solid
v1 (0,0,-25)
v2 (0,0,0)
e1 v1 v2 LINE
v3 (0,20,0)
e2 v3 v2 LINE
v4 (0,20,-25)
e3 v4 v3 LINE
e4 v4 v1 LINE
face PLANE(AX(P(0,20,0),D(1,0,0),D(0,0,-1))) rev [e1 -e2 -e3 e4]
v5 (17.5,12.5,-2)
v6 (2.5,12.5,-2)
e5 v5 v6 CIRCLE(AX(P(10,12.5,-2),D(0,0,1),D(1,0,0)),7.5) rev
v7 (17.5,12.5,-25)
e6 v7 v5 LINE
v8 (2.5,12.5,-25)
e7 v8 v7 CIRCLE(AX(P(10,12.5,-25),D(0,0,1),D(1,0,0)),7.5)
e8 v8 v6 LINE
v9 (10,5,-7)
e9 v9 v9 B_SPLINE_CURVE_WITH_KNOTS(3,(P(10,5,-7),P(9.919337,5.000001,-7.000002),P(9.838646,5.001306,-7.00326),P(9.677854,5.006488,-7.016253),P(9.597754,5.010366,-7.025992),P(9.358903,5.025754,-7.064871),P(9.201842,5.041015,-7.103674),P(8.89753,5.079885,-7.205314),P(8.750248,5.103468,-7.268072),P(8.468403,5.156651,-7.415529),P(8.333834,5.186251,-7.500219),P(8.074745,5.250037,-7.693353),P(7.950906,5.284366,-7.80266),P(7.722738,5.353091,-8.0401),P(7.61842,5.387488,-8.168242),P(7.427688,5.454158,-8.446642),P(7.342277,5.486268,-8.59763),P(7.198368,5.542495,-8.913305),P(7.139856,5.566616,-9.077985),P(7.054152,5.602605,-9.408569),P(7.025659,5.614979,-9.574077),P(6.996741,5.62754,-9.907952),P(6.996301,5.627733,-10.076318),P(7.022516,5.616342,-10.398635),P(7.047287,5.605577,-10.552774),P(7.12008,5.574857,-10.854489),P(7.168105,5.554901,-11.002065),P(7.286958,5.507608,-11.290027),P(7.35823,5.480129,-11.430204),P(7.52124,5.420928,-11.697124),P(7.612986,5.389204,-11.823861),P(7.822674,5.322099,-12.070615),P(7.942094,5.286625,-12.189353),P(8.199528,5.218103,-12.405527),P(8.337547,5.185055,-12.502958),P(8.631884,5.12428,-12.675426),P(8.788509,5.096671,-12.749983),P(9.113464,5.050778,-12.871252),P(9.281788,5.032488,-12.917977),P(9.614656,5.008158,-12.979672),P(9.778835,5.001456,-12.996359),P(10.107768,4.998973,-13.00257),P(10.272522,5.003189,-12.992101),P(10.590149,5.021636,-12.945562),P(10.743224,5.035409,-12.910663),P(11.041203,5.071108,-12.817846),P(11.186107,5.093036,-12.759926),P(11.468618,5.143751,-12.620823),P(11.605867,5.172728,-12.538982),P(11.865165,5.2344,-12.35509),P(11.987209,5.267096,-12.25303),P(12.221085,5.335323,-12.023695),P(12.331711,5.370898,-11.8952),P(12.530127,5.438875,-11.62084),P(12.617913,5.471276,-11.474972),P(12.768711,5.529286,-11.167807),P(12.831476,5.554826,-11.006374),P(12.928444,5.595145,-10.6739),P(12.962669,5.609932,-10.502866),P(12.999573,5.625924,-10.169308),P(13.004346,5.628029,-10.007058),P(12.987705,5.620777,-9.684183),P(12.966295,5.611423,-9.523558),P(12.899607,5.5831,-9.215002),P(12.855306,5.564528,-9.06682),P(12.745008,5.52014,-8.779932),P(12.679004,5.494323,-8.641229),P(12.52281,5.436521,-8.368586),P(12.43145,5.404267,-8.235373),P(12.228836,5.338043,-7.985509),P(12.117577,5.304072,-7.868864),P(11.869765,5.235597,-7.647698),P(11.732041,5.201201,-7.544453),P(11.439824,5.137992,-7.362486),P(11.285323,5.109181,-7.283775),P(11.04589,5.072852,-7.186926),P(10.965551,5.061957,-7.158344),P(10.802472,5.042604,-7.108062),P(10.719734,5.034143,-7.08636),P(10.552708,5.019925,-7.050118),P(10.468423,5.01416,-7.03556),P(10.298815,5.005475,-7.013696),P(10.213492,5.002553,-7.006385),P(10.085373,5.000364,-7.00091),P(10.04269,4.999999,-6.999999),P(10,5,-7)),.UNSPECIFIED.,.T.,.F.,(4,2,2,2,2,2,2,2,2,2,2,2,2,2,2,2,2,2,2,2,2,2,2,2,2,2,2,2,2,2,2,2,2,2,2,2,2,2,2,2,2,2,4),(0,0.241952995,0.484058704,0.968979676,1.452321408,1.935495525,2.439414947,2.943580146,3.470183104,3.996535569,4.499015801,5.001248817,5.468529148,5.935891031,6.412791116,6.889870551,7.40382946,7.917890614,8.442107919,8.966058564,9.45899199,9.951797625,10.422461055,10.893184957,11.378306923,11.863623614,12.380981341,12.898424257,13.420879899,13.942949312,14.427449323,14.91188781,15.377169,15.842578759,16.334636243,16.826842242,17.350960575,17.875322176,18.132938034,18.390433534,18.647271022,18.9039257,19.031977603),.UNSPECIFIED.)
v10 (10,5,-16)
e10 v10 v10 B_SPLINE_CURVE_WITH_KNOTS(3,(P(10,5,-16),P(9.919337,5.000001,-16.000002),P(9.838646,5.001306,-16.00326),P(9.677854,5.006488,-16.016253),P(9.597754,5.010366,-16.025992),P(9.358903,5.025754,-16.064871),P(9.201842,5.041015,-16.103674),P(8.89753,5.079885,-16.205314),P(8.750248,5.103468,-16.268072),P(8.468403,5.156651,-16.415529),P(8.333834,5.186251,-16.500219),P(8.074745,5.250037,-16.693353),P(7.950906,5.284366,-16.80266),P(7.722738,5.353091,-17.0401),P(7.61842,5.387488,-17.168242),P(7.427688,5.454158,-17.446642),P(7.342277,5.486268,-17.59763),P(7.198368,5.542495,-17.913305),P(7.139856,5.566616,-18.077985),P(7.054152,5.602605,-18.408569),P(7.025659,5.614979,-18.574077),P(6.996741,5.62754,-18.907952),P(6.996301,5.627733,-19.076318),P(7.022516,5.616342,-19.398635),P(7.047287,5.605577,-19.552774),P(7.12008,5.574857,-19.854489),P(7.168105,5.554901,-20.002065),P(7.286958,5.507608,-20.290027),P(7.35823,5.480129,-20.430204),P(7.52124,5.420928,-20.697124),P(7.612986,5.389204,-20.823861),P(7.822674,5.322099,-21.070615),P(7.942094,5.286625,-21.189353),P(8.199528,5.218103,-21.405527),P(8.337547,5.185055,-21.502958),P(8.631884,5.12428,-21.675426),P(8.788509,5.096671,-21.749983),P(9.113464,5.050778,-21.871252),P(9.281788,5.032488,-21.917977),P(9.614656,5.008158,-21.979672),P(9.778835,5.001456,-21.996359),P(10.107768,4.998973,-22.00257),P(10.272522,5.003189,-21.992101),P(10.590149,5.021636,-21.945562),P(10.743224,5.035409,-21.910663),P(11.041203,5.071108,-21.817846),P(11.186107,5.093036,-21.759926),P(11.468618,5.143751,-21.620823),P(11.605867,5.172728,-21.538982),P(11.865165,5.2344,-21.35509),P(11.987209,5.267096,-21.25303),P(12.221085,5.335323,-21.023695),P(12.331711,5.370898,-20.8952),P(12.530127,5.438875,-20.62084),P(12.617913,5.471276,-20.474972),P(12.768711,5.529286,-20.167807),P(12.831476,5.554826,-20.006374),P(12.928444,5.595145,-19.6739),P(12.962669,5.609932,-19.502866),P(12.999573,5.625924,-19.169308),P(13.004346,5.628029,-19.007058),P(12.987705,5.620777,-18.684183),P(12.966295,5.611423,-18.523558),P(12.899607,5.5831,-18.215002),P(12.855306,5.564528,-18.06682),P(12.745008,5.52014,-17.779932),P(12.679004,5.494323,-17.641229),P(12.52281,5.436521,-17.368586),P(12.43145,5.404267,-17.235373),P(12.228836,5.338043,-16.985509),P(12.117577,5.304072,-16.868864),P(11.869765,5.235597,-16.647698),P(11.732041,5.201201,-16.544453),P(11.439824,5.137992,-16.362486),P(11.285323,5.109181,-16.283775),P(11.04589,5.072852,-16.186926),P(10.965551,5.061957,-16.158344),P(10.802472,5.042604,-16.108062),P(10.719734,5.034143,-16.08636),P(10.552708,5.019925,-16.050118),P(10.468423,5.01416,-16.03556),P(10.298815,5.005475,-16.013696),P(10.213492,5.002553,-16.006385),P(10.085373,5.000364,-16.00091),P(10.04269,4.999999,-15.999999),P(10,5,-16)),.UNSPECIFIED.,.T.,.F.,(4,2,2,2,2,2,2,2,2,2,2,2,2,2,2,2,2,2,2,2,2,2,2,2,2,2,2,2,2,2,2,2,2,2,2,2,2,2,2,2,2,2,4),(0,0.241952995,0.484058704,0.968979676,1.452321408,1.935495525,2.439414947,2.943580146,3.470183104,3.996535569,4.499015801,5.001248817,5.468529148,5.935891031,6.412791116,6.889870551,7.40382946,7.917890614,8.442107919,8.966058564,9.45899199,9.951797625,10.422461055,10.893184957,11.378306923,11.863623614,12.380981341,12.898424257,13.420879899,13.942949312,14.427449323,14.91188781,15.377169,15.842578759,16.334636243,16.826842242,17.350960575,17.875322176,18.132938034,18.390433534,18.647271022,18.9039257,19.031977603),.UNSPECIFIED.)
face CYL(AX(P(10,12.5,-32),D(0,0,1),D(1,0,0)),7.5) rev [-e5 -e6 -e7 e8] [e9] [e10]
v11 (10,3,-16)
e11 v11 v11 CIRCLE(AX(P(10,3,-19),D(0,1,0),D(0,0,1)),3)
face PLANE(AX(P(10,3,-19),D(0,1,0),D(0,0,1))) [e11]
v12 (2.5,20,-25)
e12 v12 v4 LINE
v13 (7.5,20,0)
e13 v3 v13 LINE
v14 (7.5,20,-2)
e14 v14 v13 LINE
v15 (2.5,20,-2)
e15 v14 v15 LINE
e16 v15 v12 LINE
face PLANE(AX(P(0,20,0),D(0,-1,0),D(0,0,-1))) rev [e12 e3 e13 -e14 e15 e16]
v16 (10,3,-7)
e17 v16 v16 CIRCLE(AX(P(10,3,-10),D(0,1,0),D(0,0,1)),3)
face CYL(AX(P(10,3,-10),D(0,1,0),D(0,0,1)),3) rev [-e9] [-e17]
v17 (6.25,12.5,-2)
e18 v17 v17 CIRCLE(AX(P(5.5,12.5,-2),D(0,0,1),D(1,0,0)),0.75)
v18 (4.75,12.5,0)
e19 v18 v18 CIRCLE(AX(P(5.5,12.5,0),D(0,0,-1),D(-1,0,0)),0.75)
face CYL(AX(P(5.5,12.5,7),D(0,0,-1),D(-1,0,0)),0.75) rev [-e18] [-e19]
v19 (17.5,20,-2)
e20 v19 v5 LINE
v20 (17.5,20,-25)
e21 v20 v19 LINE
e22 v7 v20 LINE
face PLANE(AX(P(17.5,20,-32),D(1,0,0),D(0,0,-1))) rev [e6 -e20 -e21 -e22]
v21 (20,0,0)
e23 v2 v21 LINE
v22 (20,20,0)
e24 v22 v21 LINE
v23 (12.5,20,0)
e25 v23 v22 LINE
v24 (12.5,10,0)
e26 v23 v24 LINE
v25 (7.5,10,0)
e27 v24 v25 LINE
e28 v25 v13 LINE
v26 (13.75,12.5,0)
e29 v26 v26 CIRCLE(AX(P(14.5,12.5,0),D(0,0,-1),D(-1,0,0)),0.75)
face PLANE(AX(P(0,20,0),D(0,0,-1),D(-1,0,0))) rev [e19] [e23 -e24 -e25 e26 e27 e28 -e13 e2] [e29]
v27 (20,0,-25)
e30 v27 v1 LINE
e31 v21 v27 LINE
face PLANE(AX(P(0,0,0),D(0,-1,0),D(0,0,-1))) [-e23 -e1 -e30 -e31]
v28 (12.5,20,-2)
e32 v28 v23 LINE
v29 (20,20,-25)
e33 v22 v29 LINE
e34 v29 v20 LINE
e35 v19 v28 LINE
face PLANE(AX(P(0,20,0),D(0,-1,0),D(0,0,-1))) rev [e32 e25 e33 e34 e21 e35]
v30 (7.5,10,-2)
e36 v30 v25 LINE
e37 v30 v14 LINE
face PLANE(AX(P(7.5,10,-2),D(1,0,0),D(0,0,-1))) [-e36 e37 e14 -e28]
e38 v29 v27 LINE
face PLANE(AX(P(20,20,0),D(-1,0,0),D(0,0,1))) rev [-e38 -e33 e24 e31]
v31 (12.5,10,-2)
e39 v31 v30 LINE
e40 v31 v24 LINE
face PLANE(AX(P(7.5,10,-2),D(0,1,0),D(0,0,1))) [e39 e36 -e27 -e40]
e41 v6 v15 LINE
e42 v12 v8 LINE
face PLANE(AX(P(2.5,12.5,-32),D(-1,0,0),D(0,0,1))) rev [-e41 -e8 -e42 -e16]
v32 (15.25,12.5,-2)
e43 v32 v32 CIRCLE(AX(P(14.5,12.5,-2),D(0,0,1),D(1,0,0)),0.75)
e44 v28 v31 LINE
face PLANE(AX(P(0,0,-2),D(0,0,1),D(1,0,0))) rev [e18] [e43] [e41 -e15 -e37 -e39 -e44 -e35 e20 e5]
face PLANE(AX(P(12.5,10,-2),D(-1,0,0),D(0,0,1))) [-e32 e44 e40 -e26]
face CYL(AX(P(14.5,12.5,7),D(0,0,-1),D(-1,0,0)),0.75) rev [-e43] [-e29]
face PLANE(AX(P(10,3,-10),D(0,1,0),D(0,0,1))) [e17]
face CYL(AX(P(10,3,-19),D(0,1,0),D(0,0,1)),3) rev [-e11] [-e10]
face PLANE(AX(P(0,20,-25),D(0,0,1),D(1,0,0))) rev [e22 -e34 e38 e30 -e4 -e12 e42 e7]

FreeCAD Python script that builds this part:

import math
import FreeCAD as App
import Part
import Sketcher
from FreeCAD import Vector
Q = App.Units.Quantity


def add_polygon(sketch, points):
    """Adds a closed chain of lines whose ends are joined by coincident constraints."""
    first, n = sketch.GeometryCount, len(points)
    for a, b in zip(points, points[1:] + points[:1]):
        sketch.addGeometry(Part.LineSegment(App.Vector(*a, 0), App.Vector(*b, 0)), False)
    for i in range(n):
        sketch.addConstraint(Sketcher.Constraint("Coincident", first + i, 2, first + (i + 1) % n, 1))

doc = App.newDocument("Part")
body = doc.addObject("PartDesign::Body", "Body")

# Sketch on XZ plane
sketch1 = body.newObject("Sketcher::SketchObject", "Sketch")
sketch1.AttachmentSupport = (doc.getObject("XZ_Plane"), [""])
sketch1.MapMode = "FlatFace"
add_polygon(sketch1, [(0, -25), (0, 0), (20, 0), (20, -25)])  # lines 0-3
sketch1.addConstraint(Sketcher.Constraint("Vertical", 0))
sketch1.addConstraint(Sketcher.Constraint("Horizontal", 1))
sketch1.addConstraint(Sketcher.Constraint("Vertical", 2))
sketch1.addConstraint(Sketcher.Constraint("Horizontal", 3))
sketch1.addConstraint(Sketcher.Constraint("Coincident", 0, 2, -1, 1))
sketch1.addConstraint(Sketcher.Constraint("DistanceX", 1, 1, 1, 2, Q("20 mm")))
sketch1.addConstraint(Sketcher.Constraint("DistanceY", 0, 1, 0, 2, Q("25 mm")))
pad1 = body.newObject("PartDesign::Pad", "Pad")
pad1.Profile = sketch1
pad1.Length = 20
pad1.Reversed = True

# Sketch on XY plane
sketch2 = body.newObject("Sketcher::SketchObject", "Sketch001")
sketch2.AttachmentSupport = (doc.getObject("XY_Plane"), [""])
sketch2.MapMode = "FlatFace"
sketch2.addGeometry(Part.LineSegment(Vector(2, 20, 0), Vector(2, 12, 0)), False)
sketch2.addGeometry(Part.ArcOfCircle(Part.Circle(Vector(10, 12, 0), Vector(0, 0, 1), 8), math.radians(180), math.radians(360)), False)
sketch2.addGeometry(Part.LineSegment(Vector(18, 12, 0), Vector(18, 20, 0)), False)
sketch2.addGeometry(Part.LineSegment(Vector(18, 20, 0), Vector(2, 20, 0)), False)
sketch2.addConstraint(Sketcher.Constraint("Tangent", 0, 2, 1, 1))
sketch2.addConstraint(Sketcher.Constraint("Tangent", 1, 2, 2, 1))
sketch2.addConstraint(Sketcher.Constraint("Coincident", 2, 2, 3, 1))
sketch2.addConstraint(Sketcher.Constraint("Coincident", 3, 2, 0, 1))
sketch2.addConstraint(Sketcher.Constraint("Vertical", 0))
sketch2.addConstraint(Sketcher.Constraint("Vertical", 2))
sketch2.addConstraint(Sketcher.Constraint("Horizontal", 3))
sketch2.addConstraint(Sketcher.Constraint("Radius", 1, Q("7.5 mm")))
sketch2.addConstraint(Sketcher.Constraint("DistanceY", 0, 2, 0, 1, Q("7.5 mm")))
sketch2.addConstraint(Sketcher.Constraint("DistanceX", -1, 1, 1, 3, Q("10 mm")))
sketch2.addConstraint(Sketcher.Constraint("DistanceY", -1, 1, 2, 2, Q("20 mm")))
pocket1 = body.newObject("PartDesign::Pocket", "Pocket")
pocket1.Profile = sketch2
pocket1.Length = 32

# Sketch on XZ plane
sketch3 = body.newObject("Sketcher::SketchObject", "Sketch002")
sketch3.AttachmentSupport = (doc.getObject("XZ_Plane"), [""])
sketch3.MapMode = "FlatFace"
sketch3.AttachmentOffset = App.Placement(Vector(0, 0, -20), App.Rotation())
sketch3.addGeometry(Part.Circle(Vector(10, -10, 0), Vector(0, 0, 1), 3), False)
sketch3.addGeometry(Part.Circle(Vector(10, -19, 0), Vector(0, 0, 1), 3), False)
sketch3.addConstraint(Sketcher.Constraint("Equal", 0, 1))
sketch3.addConstraint(Sketcher.Constraint("Vertical", 0, 3, 1, 3))
sketch3.addConstraint(Sketcher.Constraint("Diameter", 0, Q("6 mm")))
sketch3.addConstraint(Sketcher.Constraint("DistanceX", -1, 1, 0, 3, Q("10 mm")))
sketch3.addConstraint(Sketcher.Constraint("DistanceY", 0, 3, -1, 1, Q("10 mm")))
sketch3.addConstraint(Sketcher.Constraint("DistanceY", 1, 3, -1, 1, Q("19 mm")))
pocket2 = body.newObject("PartDesign::Pocket", "Pocket001")
pocket2.Profile = sketch3
pocket2.Length = 17
pocket2.Reversed = True

# Sketch on XY plane
sketch4 = body.newObject("Sketcher::SketchObject", "Sketch003")
sketch4.AttachmentSupport = (doc.getObject("XY_Plane"), [""])
sketch4.MapMode = "FlatFace"
add_polygon(sketch4, [(20, 20), (12, 20), (12, 10), (8, 10), (8, 20), (0, 20), (0, 0), (20, 0)])  # lines 0-7
sketch4.addConstraint(Sketcher.Constraint("Horizontal", 0))
sketch4.addConstraint(Sketcher.Constraint("Vertical", 1))
sketch4.addConstraint(Sketcher.Constraint("Horizontal", 2))
sketch4.addConstraint(Sketcher.Constraint("Vertical", 3))
sketch4.addConstraint(Sketcher.Constraint("Horizontal", 4))
sketch4.addConstraint(Sketcher.Constraint("Vertical", 5))
sketch4.addConstraint(Sketcher.Constraint("Horizontal", 6))
sketch4.addConstraint(Sketcher.Constraint("Vertical", 7))
sketch4.addConstraint(Sketcher.Constraint("Coincident", 5, 2, -1, 1))
sketch4.addConstraint(Sketcher.Constraint("Horizontal", 0, 2, 3, 2))
sketch4.addConstraint(Sketcher.Constraint("Equal", 0, 4))
sketch4.addConstraint(Sketcher.Constraint("Equal", 6, 5))
sketch4.addConstraint(Sketcher.Constraint("DistanceX", 2, 2, 2, 1, Q("5 mm")))
sketch4.addConstraint(Sketcher.Constraint("DistanceX", 6, 1, 6, 2, Q("20 mm")))
sketch4.addConstraint(Sketcher.Constraint("DistanceY", 1, 2, 1, 1, Q("10 mm")))
pad2 = body.newObject("PartDesign::Pad", "Pad001")
pad2.Profile = sketch4
pad2.Length = 2
pad2.Reversed = True

# Sketch on XY plane
sketch5 = body.newObject("Sketcher::SketchObject", "Sketch004")
sketch5.AttachmentSupport = (doc.getObject("XY_Plane"), [""])
sketch5.MapMode = "FlatFace"
sketch5.AttachmentOffset = App.Placement(Vector(0, 0, -25), App.Rotation())
sketch5.addGeometry(Part.Circle(Vector(14.5, 12.5, 0), Vector(0, 0, 1), 0.8), False)
sketch5.addGeometry(Part.Circle(Vector(5.5, 12.5, 0), Vector(0, 0, 1), 0.8), False)
sketch5.addConstraint(Sketcher.Constraint("Equal", 0, 1))
sketch5.addConstraint(Sketcher.Constraint("Horizontal", 0, 3, 1, 3))
sketch5.addConstraint(Sketcher.Constraint("Diameter", 0, Q("1.5 mm")))
sketch5.addConstraint(Sketcher.Constraint("DistanceX", 1, 3, 0, 3, Q("9 mm")))
sketch5.addConstraint(Sketcher.Constraint("DistanceX", -1, 1, 0, 3, Q("14.5 mm")))
sketch5.addConstraint(Sketcher.Constraint("DistanceY", -1, 1, 0, 3, Q("12.5 mm")))
pocket3 = body.newObject("PartDesign::Pocket", "Pocket002")
pocket3.Profile = sketch5
pocket3.Length = 32
pocket3.Reversed = True

doc.recompute()
